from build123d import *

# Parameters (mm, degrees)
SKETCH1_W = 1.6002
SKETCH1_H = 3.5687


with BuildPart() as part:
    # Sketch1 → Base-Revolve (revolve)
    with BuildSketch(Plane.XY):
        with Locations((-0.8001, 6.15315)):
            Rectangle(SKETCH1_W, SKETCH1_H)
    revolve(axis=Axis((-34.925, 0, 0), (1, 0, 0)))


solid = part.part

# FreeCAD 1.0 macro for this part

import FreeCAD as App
import Part
import Sketcher
from FreeCAD import Vector
Q = App.Units.Quantity


def add_polygon(sketch, points):
    """Adds a closed chain of lines whose ends are joined by coincident constraints."""
    first, n = sketch.GeometryCount, len(points)
    for a, b in zip(points, points[1:] + points[:1]):
        sketch.addGeometry(Part.LineSegment(App.Vector(*a, 0), App.Vector(*b, 0)), False)
    for i in range(n):
        sketch.addConstraint(Sketcher.Constraint("Coincident", first + i, 2, first + (i + 1) % n, 1))

doc = App.newDocument("Part")
body = doc.addObject("PartDesign::Body", "Body")

# Sketch on XY plane
sketch1 = body.newObject("Sketcher::SketchObject", "Sketch")
sketch1.AttachmentSupport = (doc.getObject("XY_Plane"), [""])
sketch1.MapMode = "FlatFace"
add_polygon(sketch1, [(-1.6002, 7.9375), (-1.6002, 4.3688), (0, 4.3688), (0, 7.9375)])  # lines 0-3
sketch1.addConstraint(Sketcher.Constraint("Vertical", 0))
sketch1.addConstraint(Sketcher.Constraint("Horizontal", 1))
sketch1.addConstraint(Sketcher.Constraint("Vertical", 2))
sketch1.addConstraint(Sketcher.Constraint("Horizontal", 3))
sketch1.addConstraint(Sketcher.Constraint("PointOnObject", 1, 2, -2))
sketch1.addConstraint(Sketcher.Constraint("DistanceX", 1, 1, 1, 2, Q("0.063 in")))
sketch1.addConstraint(Sketcher.Constraint("DistanceY", 0, 2, 0, 1, Q("0.1405 in")))
sketch1.addConstraint(Sketcher.Constraint("DistanceY", -1, 1, 0, 2, Q("0.172 in")))
revolution = body.newObject("PartDesign::Revolution", "Revolution")
revolution.Profile = sketch1
revolution.ReferenceAxis = (sketch1, ["H_Axis"])
revolution.Angle = 360

doc.recompute()
